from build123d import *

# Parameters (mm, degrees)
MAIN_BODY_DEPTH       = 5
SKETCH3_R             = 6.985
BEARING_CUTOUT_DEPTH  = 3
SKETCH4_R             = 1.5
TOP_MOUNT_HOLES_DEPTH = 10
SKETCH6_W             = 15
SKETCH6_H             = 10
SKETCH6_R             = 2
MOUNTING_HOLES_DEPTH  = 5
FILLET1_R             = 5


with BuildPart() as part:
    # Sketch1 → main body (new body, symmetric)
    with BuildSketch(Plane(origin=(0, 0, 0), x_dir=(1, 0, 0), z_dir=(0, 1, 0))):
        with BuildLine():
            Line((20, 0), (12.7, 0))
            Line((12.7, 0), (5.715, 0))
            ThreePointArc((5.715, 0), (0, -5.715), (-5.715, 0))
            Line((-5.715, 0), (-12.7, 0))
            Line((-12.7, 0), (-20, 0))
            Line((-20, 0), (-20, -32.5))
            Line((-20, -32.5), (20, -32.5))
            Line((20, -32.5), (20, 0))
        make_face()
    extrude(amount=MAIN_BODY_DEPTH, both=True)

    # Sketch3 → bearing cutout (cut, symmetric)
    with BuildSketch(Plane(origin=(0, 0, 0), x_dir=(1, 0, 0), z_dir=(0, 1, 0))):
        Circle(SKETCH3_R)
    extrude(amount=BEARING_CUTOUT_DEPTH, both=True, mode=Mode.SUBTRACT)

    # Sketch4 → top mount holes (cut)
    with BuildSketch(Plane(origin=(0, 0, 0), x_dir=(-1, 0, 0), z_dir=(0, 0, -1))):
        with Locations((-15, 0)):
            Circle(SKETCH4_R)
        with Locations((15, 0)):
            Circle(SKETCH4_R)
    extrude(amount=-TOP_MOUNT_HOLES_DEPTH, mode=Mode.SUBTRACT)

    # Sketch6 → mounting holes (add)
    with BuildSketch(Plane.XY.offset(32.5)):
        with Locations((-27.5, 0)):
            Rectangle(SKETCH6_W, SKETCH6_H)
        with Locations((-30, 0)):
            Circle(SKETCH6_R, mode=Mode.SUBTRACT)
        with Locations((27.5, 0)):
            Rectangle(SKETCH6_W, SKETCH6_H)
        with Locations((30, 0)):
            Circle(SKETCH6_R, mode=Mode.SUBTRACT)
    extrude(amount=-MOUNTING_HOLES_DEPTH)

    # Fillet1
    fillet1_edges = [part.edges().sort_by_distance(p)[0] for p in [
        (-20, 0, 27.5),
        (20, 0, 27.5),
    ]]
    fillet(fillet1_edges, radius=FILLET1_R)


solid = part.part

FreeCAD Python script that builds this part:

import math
import FreeCAD as App
import Part
import Sketcher


def edges_at(feature, points):
    """Names of the edges that pass closest to the given points."""
    edges = feature.Shape.Edges
    near = lambda p: min(range(len(edges)), key=lambda i: edges[i].distToShape(Part.Vertex(*p))[0])
    return sorted({f"Edge{near(p) + 1}" for p in points})

doc = App.newDocument("Part")
body = doc.addObject("PartDesign::Body", "Body")

sketch1 = body.newObject("Sketcher::SketchObject", "Sketch")
sketch1.AttachmentSupport = (doc.getObject("XZ_Plane"), [""])
sketch1.MapMode = "FlatFace"
sketch1.addGeometry([
    Part.LineSegment(App.Vector(20, 0, 0), App.Vector(5.715, 0, 0)),
    Part.ArcOfCircle(Part.Circle(App.Vector(0, 0, 0), App.Vector(0, 0, 1), 5.715), math.radians(0), math.radians(180)),
    Part.LineSegment(App.Vector(-5.715, 0, 0), App.Vector(-20, 0, 0)),
    Part.LineSegment(App.Vector(-20, 0, 0), App.Vector(-20, 32.5, 0)),
    Part.LineSegment(App.Vector(-20, 32.5, 0), App.Vector(20, 32.5, 0)),
    Part.LineSegment(App.Vector(20, 32.5, 0), App.Vector(20, 0, 0)),
], False)
sketch1.addConstraint([
    Sketcher.Constraint("Coincident", 0, 2, 1, 1),
    Sketcher.Constraint("Coincident", 1, 2, 2, 1),
    Sketcher.Constraint("Coincident", 2, 2, 3, 1),
    Sketcher.Constraint("Coincident", 3, 2, 4, 1),
    Sketcher.Constraint("Coincident", 4, 2, 5, 1),
    Sketcher.Constraint("Coincident", 5, 2, 0, 1),
    Sketcher.Constraint("Horizontal", 0),
    Sketcher.Constraint("Horizontal", 2),
    Sketcher.Constraint("Vertical", 3),
    Sketcher.Constraint("Horizontal", 4),
    Sketcher.Constraint("Vertical", 5),
    Sketcher.Constraint("Coincident", 1, 3, -1, 1),
    Sketcher.Constraint("Symmetric", 2, 2, 5, 2, -1, 1),
    Sketcher.Constraint("PointOnObject", 0, 2, -1),
    Sketcher.Constraint("DistanceX", 4, 1, 4, 2, 40.0),
    Sketcher.Constraint("DistanceY", 3, 1, 3, 2, 32.5),
    Sketcher.Constraint("Radius", 1, 5.715),
])
pad1 = body.newObject("PartDesign::Pad", "Pad")
pad1.Profile = sketch1
pad1.Length = 10
pad1.Midplane = True

sketch2 = body.newObject("Sketcher::SketchObject", "Sketch001")
sketch2.AttachmentSupport = (doc.getObject("XZ_Plane"), [""])
sketch2.MapMode = "FlatFace"
sketch2.addGeometry(Part.Circle(App.Vector(0, 0, 0), App.Vector(0, 0, 1), 6.985), False)
sketch2.addConstraint([
    Sketcher.Constraint("Coincident", 0, 3, -1, 1),
    Sketcher.Constraint("Diameter", 0, 13.97),
])
pocket1 = body.newObject("PartDesign::Pocket", "Pocket")
pocket1.Profile = sketch2
pocket1.Length = 6
pocket1.Midplane = True

sketch3 = body.newObject("Sketcher::SketchObject", "Sketch002")
sketch3.AttachmentSupport = (doc.getObject("XY_Plane"), [""])
sketch3.MapMode = "FlatFace"
sketch3.addGeometry([
    Part.Circle(App.Vector(15, 0, 0), App.Vector(0, 0, 1), 1.5),
    Part.Circle(App.Vector(-15, 0, 0), App.Vector(0, 0, 1), 1.5),
], False)
sketch3.addConstraint([
    Sketcher.Constraint("Equal", 0, 1),
    Sketcher.Constraint("Symmetric", 0, 3, 1, 3, -1, 1),
    Sketcher.Constraint("PointOnObject", 0, 3, -1),
    Sketcher.Constraint("Diameter", 0, 3.0),
    Sketcher.Constraint("DistanceX", -1, 1, 0, 3, 15.0),
])
pocket2 = body.newObject("PartDesign::Pocket", "Pocket001")
pocket2.Profile = sketch3
pocket2.Length = 10
pocket2.Reversed = True

sketch4 = body.newObject("Sketcher::SketchObject", "Sketch003")
sketch4.AttachmentSupport = (doc.getObject("XY_Plane"), [""])
sketch4.MapMode = "FlatFace"
sketch4.AttachmentOffset = App.Placement(App.Vector(0, 0, 32.5), App.Rotation())
sketch4.addGeometry([
    Part.LineSegment(App.Vector(-35, 5, 0), App.Vector(-35, -5, 0)),
    Part.LineSegment(App.Vector(-35, -5, 0), App.Vector(-20, -5, 0)),
    Part.LineSegment(App.Vector(-20, -5, 0), App.Vector(-20, 5, 0)),
    Part.LineSegment(App.Vector(-20, 5, 0), App.Vector(-35, 5, 0)),
    Part.Circle(App.Vector(-30, 0, 0), App.Vector(0, 0, 1), 2),
    Part.LineSegment(App.Vector(20, 5, 0), App.Vector(20, -5, 0)),
    Part.LineSegment(App.Vector(20, -5, 0), App.Vector(35, -5, 0)),
    Part.LineSegment(App.Vector(35, -5, 0), App.Vector(35, 5, 0)),
    Part.LineSegment(App.Vector(35, 5, 0), App.Vector(20, 5, 0)),
    Part.Circle(App.Vector(30, 0, 0), App.Vector(0, 0, 1), 2),
], False)
sketch4.addConstraint([
    Sketcher.Constraint("Coincident", 0, 2, 1, 1),
    Sketcher.Constraint("Coincident", 1, 2, 2, 1),
    Sketcher.Constraint("Coincident", 2, 2, 3, 1),
    Sketcher.Constraint("Coincident", 3, 2, 0, 1),
    Sketcher.Constraint("Coincident", 5, 2, 6, 1),
    Sketcher.Constraint("Coincident", 6, 2, 7, 1),
    Sketcher.Constraint("Coincident", 7, 2, 8, 1),
    Sketcher.Constraint("Coincident", 8, 2, 5, 1),
    Sketcher.Constraint("Vertical", 0),
    Sketcher.Constraint("Horizontal", 1),
    Sketcher.Constraint("Vertical", 2),
    Sketcher.Constraint("Horizontal", 3),
    Sketcher.Constraint("Vertical", 5),
    Sketcher.Constraint("Horizontal", 6),
    Sketcher.Constraint("Vertical", 7),
    Sketcher.Constraint("Horizontal", 8),
    Sketcher.Constraint("Equal", 4, 9),
    Sketcher.Constraint("Symmetric", 4, 3, 9, 3, -1, 1),
    Sketcher.Constraint("Symmetric", 2, 2, 5, 2, -1, 1),
    Sketcher.Constraint("Symmetric", 0, 2, 7, 2, -1, 1),
    Sketcher.Constraint("PointOnObject", 4, 3, -1),
    Sketcher.Constraint("Horizontal", 1, 2, 5, 2),
    Sketcher.Constraint("Diameter", 4, 4.0),
    Sketcher.Constraint("DistanceX", 1, 1, 1, 2, 15.0),
    Sketcher.Constraint("DistanceY", 0, 2, 0, 1, 10.0),
    Sketcher.Constraint("DistanceX", 4, 3, -1, 1, 30.0),
    Sketcher.Constraint("DistanceX", 0, 2, -1, 1, 35.0),
])
pad2 = body.newObject("PartDesign::Pad", "Pad001")
pad2.Profile = sketch4
pad2.Length = 5
pad2.Reversed = True
doc.recompute()

fillet = body.newObject("PartDesign::Fillet", "Fillet")
fillet.Base = (pad2, edges_at(pad2, [(-20, 0, 27.5), (20, 0, 27.5)]))
fillet.Radius = 5

doc.recompute()
